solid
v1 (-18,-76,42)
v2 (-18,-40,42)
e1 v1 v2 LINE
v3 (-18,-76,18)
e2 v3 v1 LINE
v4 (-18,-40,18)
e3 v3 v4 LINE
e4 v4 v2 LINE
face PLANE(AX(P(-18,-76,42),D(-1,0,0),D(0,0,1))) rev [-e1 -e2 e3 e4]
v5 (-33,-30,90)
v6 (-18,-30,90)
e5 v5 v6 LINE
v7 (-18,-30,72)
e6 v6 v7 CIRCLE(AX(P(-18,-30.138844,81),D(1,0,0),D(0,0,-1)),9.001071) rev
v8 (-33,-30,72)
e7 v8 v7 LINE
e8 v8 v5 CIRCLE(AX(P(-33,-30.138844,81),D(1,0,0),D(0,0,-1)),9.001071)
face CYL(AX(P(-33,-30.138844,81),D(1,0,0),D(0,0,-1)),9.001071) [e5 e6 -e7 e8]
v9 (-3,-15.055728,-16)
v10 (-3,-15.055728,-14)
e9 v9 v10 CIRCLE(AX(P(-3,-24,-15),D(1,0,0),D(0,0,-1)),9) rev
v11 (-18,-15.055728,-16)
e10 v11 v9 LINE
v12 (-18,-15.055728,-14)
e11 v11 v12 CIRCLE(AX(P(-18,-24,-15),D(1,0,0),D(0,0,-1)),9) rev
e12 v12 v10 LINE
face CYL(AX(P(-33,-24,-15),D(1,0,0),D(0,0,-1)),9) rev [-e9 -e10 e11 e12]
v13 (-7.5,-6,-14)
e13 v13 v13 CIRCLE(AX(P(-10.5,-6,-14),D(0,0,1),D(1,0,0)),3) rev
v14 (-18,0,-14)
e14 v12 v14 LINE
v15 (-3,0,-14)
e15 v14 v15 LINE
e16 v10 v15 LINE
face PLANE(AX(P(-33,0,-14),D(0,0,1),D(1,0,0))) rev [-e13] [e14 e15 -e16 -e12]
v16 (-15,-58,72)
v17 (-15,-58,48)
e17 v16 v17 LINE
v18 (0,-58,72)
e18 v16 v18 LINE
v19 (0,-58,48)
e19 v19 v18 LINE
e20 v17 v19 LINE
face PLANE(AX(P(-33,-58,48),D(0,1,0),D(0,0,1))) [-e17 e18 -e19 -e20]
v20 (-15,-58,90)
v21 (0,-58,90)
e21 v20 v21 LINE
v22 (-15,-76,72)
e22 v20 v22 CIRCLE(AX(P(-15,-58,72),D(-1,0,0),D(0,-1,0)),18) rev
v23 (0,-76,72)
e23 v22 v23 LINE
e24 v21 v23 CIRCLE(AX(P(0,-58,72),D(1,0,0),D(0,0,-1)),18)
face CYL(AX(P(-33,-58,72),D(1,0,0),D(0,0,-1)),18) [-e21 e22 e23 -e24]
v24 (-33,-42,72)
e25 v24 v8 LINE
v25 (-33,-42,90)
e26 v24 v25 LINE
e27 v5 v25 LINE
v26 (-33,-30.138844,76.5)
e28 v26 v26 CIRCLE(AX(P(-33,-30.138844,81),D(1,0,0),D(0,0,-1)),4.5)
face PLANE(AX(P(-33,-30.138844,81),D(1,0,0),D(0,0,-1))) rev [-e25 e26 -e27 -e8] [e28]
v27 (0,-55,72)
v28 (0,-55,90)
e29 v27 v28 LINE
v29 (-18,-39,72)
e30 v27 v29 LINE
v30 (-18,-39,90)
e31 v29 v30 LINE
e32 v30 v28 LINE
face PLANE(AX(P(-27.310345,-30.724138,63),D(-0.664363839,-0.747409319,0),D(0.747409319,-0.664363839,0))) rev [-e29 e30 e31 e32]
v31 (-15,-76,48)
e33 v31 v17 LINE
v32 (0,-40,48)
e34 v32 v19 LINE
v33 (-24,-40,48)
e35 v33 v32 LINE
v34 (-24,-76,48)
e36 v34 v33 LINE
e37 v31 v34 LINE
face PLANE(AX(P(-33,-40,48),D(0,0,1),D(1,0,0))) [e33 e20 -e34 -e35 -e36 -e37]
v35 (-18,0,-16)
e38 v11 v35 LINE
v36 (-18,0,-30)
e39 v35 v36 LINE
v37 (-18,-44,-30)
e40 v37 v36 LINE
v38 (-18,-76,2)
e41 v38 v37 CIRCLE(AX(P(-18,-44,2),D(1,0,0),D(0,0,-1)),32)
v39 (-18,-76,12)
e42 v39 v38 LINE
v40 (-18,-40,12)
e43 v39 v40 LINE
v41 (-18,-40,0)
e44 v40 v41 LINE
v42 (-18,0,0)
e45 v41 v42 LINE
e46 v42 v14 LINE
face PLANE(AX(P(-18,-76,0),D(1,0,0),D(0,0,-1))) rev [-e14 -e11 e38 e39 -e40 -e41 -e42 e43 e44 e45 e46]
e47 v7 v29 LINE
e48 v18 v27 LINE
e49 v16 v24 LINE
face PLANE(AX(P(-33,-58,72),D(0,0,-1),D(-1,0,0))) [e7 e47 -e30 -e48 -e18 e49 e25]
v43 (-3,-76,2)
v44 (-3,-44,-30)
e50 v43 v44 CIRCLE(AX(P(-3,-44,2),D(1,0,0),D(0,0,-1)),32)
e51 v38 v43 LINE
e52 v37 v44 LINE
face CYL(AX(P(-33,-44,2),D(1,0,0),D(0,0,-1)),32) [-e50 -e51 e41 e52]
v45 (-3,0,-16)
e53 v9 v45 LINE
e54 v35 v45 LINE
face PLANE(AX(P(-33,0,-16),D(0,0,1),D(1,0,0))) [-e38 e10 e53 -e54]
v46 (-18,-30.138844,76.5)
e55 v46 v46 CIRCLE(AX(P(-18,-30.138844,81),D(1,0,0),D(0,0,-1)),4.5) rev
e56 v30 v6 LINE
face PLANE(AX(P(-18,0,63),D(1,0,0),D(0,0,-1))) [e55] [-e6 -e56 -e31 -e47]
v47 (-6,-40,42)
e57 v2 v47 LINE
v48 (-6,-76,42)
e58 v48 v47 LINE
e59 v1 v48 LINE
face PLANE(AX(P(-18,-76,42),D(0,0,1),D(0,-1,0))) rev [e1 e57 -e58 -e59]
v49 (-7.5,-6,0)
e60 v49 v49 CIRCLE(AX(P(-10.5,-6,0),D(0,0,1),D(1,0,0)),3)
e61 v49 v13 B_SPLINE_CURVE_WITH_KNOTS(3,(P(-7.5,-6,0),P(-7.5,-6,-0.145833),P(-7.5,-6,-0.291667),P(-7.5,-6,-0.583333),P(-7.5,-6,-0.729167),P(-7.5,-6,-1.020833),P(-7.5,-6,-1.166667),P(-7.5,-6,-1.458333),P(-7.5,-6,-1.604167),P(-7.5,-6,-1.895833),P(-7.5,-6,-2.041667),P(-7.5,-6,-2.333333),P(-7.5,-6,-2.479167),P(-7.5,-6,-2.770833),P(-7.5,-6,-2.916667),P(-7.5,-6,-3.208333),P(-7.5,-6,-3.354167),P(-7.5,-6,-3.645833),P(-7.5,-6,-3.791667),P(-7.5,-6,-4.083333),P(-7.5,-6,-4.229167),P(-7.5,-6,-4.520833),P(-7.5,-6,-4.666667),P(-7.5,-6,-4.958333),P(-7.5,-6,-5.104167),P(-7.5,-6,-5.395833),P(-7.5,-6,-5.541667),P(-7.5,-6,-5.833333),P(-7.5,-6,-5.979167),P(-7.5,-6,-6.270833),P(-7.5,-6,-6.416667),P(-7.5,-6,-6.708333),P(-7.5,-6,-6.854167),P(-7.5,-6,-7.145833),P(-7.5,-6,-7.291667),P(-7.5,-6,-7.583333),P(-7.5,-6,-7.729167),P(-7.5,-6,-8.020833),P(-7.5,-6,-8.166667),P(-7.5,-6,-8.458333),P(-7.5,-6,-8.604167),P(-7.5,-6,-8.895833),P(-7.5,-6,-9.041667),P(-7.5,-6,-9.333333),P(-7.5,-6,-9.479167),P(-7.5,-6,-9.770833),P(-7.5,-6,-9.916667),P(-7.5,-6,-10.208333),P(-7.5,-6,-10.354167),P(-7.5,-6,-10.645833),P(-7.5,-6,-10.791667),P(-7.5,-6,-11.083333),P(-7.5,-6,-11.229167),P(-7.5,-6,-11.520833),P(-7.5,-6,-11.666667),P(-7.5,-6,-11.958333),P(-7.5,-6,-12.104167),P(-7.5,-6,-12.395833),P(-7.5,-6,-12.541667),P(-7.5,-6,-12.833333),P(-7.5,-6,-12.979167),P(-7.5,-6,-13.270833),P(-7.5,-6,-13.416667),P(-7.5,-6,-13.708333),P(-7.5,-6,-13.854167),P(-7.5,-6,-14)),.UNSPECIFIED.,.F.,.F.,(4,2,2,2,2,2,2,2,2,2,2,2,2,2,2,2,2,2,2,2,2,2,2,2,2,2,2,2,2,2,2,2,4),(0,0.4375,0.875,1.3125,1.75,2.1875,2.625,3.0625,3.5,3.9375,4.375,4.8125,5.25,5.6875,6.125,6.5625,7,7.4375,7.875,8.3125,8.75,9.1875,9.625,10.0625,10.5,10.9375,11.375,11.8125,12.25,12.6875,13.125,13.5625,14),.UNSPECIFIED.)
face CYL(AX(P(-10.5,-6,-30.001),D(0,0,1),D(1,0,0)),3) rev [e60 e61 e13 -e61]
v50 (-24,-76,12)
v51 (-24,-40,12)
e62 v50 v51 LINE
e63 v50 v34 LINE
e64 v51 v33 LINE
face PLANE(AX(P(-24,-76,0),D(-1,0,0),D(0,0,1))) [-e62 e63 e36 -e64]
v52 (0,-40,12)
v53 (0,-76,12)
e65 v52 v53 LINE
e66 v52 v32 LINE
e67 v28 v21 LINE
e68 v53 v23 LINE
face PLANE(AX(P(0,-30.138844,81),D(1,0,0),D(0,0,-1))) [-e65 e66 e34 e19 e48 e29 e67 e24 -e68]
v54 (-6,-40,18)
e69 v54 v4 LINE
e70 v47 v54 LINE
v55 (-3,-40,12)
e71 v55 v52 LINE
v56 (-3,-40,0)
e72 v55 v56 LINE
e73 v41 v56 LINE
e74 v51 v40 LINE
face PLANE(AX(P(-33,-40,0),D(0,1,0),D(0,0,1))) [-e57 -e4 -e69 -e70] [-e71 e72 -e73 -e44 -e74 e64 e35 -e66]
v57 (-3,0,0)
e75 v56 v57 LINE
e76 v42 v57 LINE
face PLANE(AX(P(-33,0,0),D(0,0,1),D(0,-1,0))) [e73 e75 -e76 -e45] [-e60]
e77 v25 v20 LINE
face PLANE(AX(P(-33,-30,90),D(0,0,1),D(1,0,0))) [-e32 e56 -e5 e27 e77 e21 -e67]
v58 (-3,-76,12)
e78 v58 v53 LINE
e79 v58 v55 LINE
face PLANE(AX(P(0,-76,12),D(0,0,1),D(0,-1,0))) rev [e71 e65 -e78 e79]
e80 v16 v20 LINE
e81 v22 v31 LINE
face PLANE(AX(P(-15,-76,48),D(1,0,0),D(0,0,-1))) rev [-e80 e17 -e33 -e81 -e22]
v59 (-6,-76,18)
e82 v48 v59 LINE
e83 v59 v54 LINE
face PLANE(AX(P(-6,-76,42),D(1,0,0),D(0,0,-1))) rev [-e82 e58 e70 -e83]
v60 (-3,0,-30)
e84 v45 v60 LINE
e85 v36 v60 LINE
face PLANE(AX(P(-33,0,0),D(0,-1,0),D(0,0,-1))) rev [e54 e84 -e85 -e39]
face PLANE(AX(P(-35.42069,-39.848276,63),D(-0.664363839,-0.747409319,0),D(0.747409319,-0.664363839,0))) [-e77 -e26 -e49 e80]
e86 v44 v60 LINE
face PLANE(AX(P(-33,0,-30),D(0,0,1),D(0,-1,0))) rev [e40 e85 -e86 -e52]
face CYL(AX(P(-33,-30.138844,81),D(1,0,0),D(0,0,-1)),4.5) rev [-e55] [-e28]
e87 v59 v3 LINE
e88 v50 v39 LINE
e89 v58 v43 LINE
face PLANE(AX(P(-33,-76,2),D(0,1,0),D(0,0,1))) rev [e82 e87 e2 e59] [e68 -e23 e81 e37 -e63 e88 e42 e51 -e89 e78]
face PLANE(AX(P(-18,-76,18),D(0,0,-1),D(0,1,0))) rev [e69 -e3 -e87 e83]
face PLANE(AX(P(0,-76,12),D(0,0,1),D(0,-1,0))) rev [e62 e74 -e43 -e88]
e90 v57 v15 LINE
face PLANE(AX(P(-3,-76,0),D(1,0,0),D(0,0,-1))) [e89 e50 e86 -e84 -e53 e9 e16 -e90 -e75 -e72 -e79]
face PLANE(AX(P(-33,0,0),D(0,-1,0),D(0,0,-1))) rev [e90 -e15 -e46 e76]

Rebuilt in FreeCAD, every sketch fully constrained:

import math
import FreeCAD as App
import Part
import Sketcher
from FreeCAD import Vector


def add_polygon(sketch, points):
    """Adds a closed chain of lines whose ends are joined by coincident constraints."""
    first, n = sketch.GeometryCount, len(points)
    for a, b in zip(points, points[1:] + points[:1]):
        sketch.addGeometry(Part.LineSegment(App.Vector(*a, 0), App.Vector(*b, 0)), False)
    for i in range(n):
        sketch.addConstraint(Sketcher.Constraint("Coincident", first + i, 2, first + (i + 1) % n, 1))

doc = App.newDocument("Part")
params = doc.addObject("Spreadsheet::Sheet", "Params")
for row, (alias, value) in enumerate([
    ("sketch1_radius", "18 mm"),
    ("sketch1_radius2", "32 mm"),
    ("sketch1_width", "40 mm"),
    ("sketch1_width2", "18 mm"),
    ("sketch1_width3", "28 mm"),
    ("pad1_length", "33 mm"),
    ("sketch2_radius", "9 mm"),
    ("sketch2_height", "2 mm"),
    ("sketch3_diameter", "9 mm"),
    ("sketch4_width", "9 mm"),
    ("sketch4_height", "48 mm"),
    ("sketch5_width", "18 mm"),
    ("sketch5_height", "24 mm"),
    ("sketch6_width", "9 mm"),
    ("sketch6_height", "30 mm"),
    ("sketch7_width", "6 mm"),
    ("sketch7_height", "42 mm"),
    ("sketch9_width", "12 mm"),
    ("sketch9_height", "24 mm"),
    ("sketch10_diameter", "6 mm"),
    ("sketch11_width", "18 mm"),
    ("sketch11_height", "34 mm"),
    ("pocket10_length", "27 mm"),
    ("sketch12_width", "18 mm"),
    ("pocket11_length", "27 mm"),
], start=1):
    params.set(f"A{row}", alias)
    params.set(f"B{row}", "=" + value)
    params.setAlias(f"B{row}", alias)

body = doc.addObject("PartDesign::Body", "Body")

# Sketch on YZ plane
sketch1 = doc.addObject("Sketcher::SketchObject", "Sketch")
body.addObject(sketch1)
sketch1.AttachmentSupport = (doc.YZ_Plane, [""])
sketch1.MapMode = "FlatFace"
sketch1.addGeometry([
    Part.LineSegment(Vector(0, -30, 0), Vector(0, 0, 0)),  # 0
    Part.LineSegment(Vector(0, 0, 0), Vector(-40, 0, 0)),  # 1
    Part.LineSegment(Vector(-40, 0, 0), Vector(-40, 48, 0)),  # 2
    Part.LineSegment(Vector(-40, 48, 0), Vector(-58, 48, 0)),  # 3
    Part.LineSegment(Vector(-58, 48, 0), Vector(-58, 72, 0)),  # 4
    Part.LineSegment(Vector(-58, 72, 0), Vector(-30, 72, 0)),  # 5
    Part.ArcOfCircle(Part.Circle(Vector(-30, 81, 0), Vector(0, 0, 1), 9), math.radians(-89), math.radians(89)),  # 6
    Part.LineSegment(Vector(-30, 90, 0), Vector(-58, 90, 0)),  # 7
    Part.ArcOfCircle(Part.Circle(Vector(-58, 72, 0), Vector(0, 0, 1), 18), math.radians(90), math.radians(180)),  # 8
    Part.LineSegment(Vector(-76, 72, 0), Vector(-76, 2, 0)),  # 9
    Part.ArcOfCircle(Part.Circle(Vector(-44, 2, 0), Vector(0, 0, 1), 32), math.radians(180), math.radians(270)),  # 10
    Part.LineSegment(Vector(-44, -30, 0), Vector(0, -30, 0)),  # 11
], False)
sketch1.addConstraint([
    Sketcher.Constraint("Coincident", 0, 2, 1, 1),
    Sketcher.Constraint("Coincident", 1, 2, 2, 1),
    Sketcher.Constraint("Coincident", 2, 2, 3, 1),
    Sketcher.Constraint("Coincident", 3, 2, 4, 1),
    Sketcher.Constraint("Coincident", 4, 2, 5, 1),
    Sketcher.Constraint("Coincident", 5, 2, 6, 1),
    Sketcher.Constraint("Coincident", 6, 2, 7, 1),
    Sketcher.Constraint("Tangent", 7, 2, 8, 1),
    Sketcher.Constraint("Tangent", 8, 2, 9, 1),
    Sketcher.Constraint("Tangent", 9, 2, 10, 1),
    Sketcher.Constraint("Tangent", 10, 2, 11, 1),
    Sketcher.Constraint("Coincident", 11, 2, 0, 1),
    Sketcher.Constraint("Vertical", 0),
    Sketcher.Constraint("Horizontal", 1),
    Sketcher.Constraint("Vertical", 2),
    Sketcher.Constraint("Horizontal", 3),
    Sketcher.Constraint("Vertical", 4),
    Sketcher.Constraint("Horizontal", 5),
    Sketcher.Constraint("Horizontal", 7),
    Sketcher.Constraint("Vertical", 9),
    Sketcher.Constraint("Horizontal", 11),
    Sketcher.Constraint("Coincident", 0, 2, -1, 1),
    Sketcher.Constraint("Coincident", 4, 2, 8, 3),
    Sketcher.Constraint("Vertical", 5, 2, 6, 2),
    Sketcher.Constraint("Radius", 8, 18.0),
    Sketcher.Constraint("Radius", 10, 32.0),
    Sketcher.Constraint("DistanceX", 1, 2, 1, 1, 40.0),
    Sketcher.Constraint("DistanceX", 3, 2, 3, 1, 18.0),
    Sketcher.Constraint("DistanceX", 5, 1, 5, 2, 28.0),
    Sketcher.Constraint("DistanceY", 0, 1, 0, 2, 30.0),
    Sketcher.Constraint("DistanceY", 2, 1, 2, 2, 48.0),
    Sketcher.Constraint("DistanceY", 4, 1, 4, 2, 24.0),
    Sketcher.Constraint("Radius", 6, 9.001071),
])
sketch1.setExpression("Constraints[24]", "Params.sketch1_radius")
sketch1.setExpression("Constraints[25]", "Params.sketch1_radius2")
sketch1.setExpression("Constraints[26]", "Params.sketch1_width")
sketch1.setExpression("Constraints[27]", "Params.sketch1_width2")
sketch1.setExpression("Constraints[28]", "Params.sketch1_width3")
pad1 = doc.addObject("PartDesign::Pad", "Pad")
body.addObject(pad1)
pad1.Profile = sketch1
pad1.setExpression("Length", "Params.pad1_length")
pad1.Reversed = True

# Sketch on YZ plane
sketch2 = doc.addObject("Sketcher::SketchObject", "Sketch001")
body.addObject(sketch2)
sketch2.AttachmentSupport = (doc.YZ_Plane, [""])
sketch2.MapMode = "FlatFace"
sketch2.addGeometry([
    Part.LineSegment(Vector(0, -16, 0), Vector(0, -14, 0)),
    Part.LineSegment(Vector(0, -14, 0), Vector(-15.1, -14, 0)),
    Part.ArcOfCircle(Part.Circle(Vector(-24, -15, 0), Vector(0, 0, 1), 9), math.radians(6), math.radians(354)),
    Part.LineSegment(Vector(-15.1, -16, 0), Vector(0, -16, 0)),
], False)
sketch2.addConstraint([
    Sketcher.Constraint("Coincident", 0, 2, 1, 1),
    Sketcher.Constraint("Coincident", 1, 2, 2, 1),
    Sketcher.Constraint("Coincident", 2, 2, 3, 1),
    Sketcher.Constraint("Coincident", 3, 2, 0, 1),
    Sketcher.Constraint("Vertical", 0),
    Sketcher.Constraint("Horizontal", 1),
    Sketcher.Constraint("Horizontal", 3),
    Sketcher.Constraint("PointOnObject", 0, 2, -2),
    Sketcher.Constraint("Vertical", 1, 2, 2, 2),
    Sketcher.Constraint("Radius", 2, 9.0),
    Sketcher.Constraint("DistanceY", 0, 1, 0, 2, 2.0),
    Sketcher.Constraint("DistanceX", 2, 3, -1, 1, 24.0),
    Sketcher.Constraint("DistanceY", 2, 3, -1, 1, 15.0),
])
sketch2.setExpression("Constraints[9]", "Params.sketch2_radius")
sketch2.setExpression("Constraints[10]", "Params.sketch2_height")
pocket1 = doc.addObject("PartDesign::Pocket", "Pocket")
body.addObject(pocket1)
pocket1.Profile = sketch2
pocket1.Type = "ThroughAll"
pocket1.Midplane = True

# Sketch on YZ plane
sketch3 = doc.addObject("Sketcher::SketchObject", "Sketch002")
body.addObject(sketch3)
sketch3.AttachmentSupport = (doc.YZ_Plane, [""])
sketch3.MapMode = "FlatFace"
sketch3.addGeometry(Part.Circle(Vector(-30.1, 81, 0), Vector(0, 0, 1), 4.5), False)
sketch3.addConstraint([
    Sketcher.Constraint("Diameter", 0, 9.0),
    Sketcher.Constraint("DistanceY", -1, 1, 0, 3, 81.0),
    Sketcher.Constraint("DistanceX", 0, 3, -1, 1, 30.138844),
])
sketch3.setExpression("Constraints[0]", "Params.sketch3_diameter")
pocket2 = doc.addObject("PartDesign::Pocket", "Pocket001")
body.addObject(pocket2)
pocket2.Profile = sketch3
pocket2.Type = "ThroughAll"
pocket2.Midplane = True

# Sketch on XZ plane
sketch4 = doc.addObject("Sketcher::SketchObject", "Sketch003")
body.addObject(sketch4)
sketch4.AttachmentSupport = (doc.XZ_Plane, [""])
sketch4.MapMode = "FlatFace"
add_polygon(sketch4, [(-33, 0), (-33, 48), (-24, 48), (-24, 0)])  # lines 0-3
sketch4.addConstraint([
    Sketcher.Constraint("Vertical", 0),
    Sketcher.Constraint("Horizontal", 1),
    Sketcher.Constraint("Vertical", 2),
    Sketcher.Constraint("Horizontal", 3),
    Sketcher.Constraint("PointOnObject", 2, 2, -1),
    Sketcher.Constraint("DistanceX", 1, 1, 1, 2, 9.0),
    Sketcher.Constraint("DistanceY", 0, 1, 0, 2, 48.0),
    Sketcher.Constraint("DistanceX", 0, 2, -1, 1, 33.0),
])
sketch4.setExpression("Constraints[9]", "Params.sketch4_width")
sketch4.setExpression("Constraints[10]", "Params.sketch4_height")
pocket3 = doc.addObject("PartDesign::Pocket", "Pocket002")
body.addObject(pocket3)
pocket3.Profile = sketch4
pocket3.Type = "ThroughAll"
pocket3.Midplane = True

# Sketch on XZ plane
sketch5 = doc.addObject("Sketcher::SketchObject", "Sketch004")
body.addObject(sketch5)
sketch5.AttachmentSupport = (doc.XZ_Plane, [""])
sketch5.MapMode = "FlatFace"
sketch5.AttachmentOffset = App.Placement(Vector(0, 0, 58), App.Rotation())
add_polygon(sketch5, [(-33, 48), (-33, 72), (-15, 72), (-15, 48)])  # lines 0-3
sketch5.addConstraint([
    Sketcher.Constraint("Vertical", 0),
    Sketcher.Constraint("Horizontal", 1),
    Sketcher.Constraint("Vertical", 2),
    Sketcher.Constraint("Horizontal", 3),
    Sketcher.Constraint("DistanceX", 1, 1, 1, 2, 18.0),
    Sketcher.Constraint("DistanceY", 0, 1, 0, 2, 24.0),
    Sketcher.Constraint("DistanceX", 0, 2, -1, 1, 33.0),
    Sketcher.Constraint("DistanceY", -1, 1, 0, 2, 72.0),
])
sketch5.setExpression("Constraints[8]", "Params.sketch5_width")
sketch5.setExpression("Constraints[9]", "Params.sketch5_height")
pocket4 = doc.addObject("PartDesign::Pocket", "Pocket003")
body.addObject(pocket4)
pocket4.Profile = sketch5
pocket4.Type = "ThroughAll"
pocket4.Midplane = True

# Sketch on XZ plane
sketch6 = doc.addObject("Sketcher::SketchObject", "Sketch005")
body.addObject(sketch6)
sketch6.AttachmentSupport = (doc.XZ_Plane, [""])
sketch6.MapMode = "FlatFace"
sketch6.AttachmentOffset = App.Placement(Vector(0, 0, 40), App.Rotation())
add_polygon(sketch6, [(-33, -30), (-33, 0), (-24, 0), (-24, -30)])  # lines 0-3
sketch6.addConstraint([
    Sketcher.Constraint("Vertical", 0),
    Sketcher.Constraint("Horizontal", 1),
    Sketcher.Constraint("Vertical", 2),
    Sketcher.Constraint("Horizontal", 3),
    Sketcher.Constraint("PointOnObject", 0, 2, -1),
    Sketcher.Constraint("DistanceX", 1, 1, 1, 2, 9.0),
    Sketcher.Constraint("DistanceY", 0, 1, 0, 2, 30.0),
    Sketcher.Constraint("DistanceX", 0, 2, -1, 1, 33.0),
])
sketch6.setExpression("Constraints[9]", "Params.sketch6_width")
sketch6.setExpression("Constraints[10]", "Params.sketch6_height")
pocket5 = doc.addObject("PartDesign::Pocket", "Pocket004")
body.addObject(pocket5)
pocket5.Profile = sketch6
pocket5.Type = "ThroughAll"
pocket5.Midplane = True

# Sketch on XZ plane
sketch7 = doc.addObject("Sketcher::SketchObject", "Sketch006")
body.addObject(sketch7)
sketch7.AttachmentSupport = (doc.XZ_Plane, [""])
sketch7.MapMode = "FlatFace"
sketch7.AttachmentOffset = App.Placement(Vector(0, 0, 40), App.Rotation())
add_polygon(sketch7, [(-24, -30), (-24, 12), (-18, 12), (-18, -30)])  # lines 0-3
sketch7.addConstraint([
    Sketcher.Constraint("Vertical", 0),
    Sketcher.Constraint("Horizontal", 1),
    Sketcher.Constraint("Vertical", 2),
    Sketcher.Constraint("Horizontal", 3),
    Sketcher.Constraint("DistanceX", 1, 1, 1, 2, 6.0),
    Sketcher.Constraint("DistanceY", 0, 1, 0, 2, 42.0),
    Sketcher.Constraint("DistanceX", 0, 2, -1, 1, 24.0),
    Sketcher.Constraint("DistanceY", -1, 1, 0, 2, 12.0),
])
sketch7.setExpression("Constraints[8]", "Params.sketch7_width")
sketch7.setExpression("Constraints[9]", "Params.sketch7_height")
pocket6 = doc.addObject("PartDesign::Pocket", "Pocket005")
body.addObject(pocket6)
pocket6.Profile = sketch7
pocket6.Type = "ThroughAll"
pocket6.Midplane = True

# Sketch on XZ plane
sketch8 = doc.addObject("Sketcher::SketchObject", "Sketch007")
body.addObject(sketch8)
sketch8.AttachmentSupport = (doc.XZ_Plane, [""])
sketch8.MapMode = "FlatFace"
sketch8.AttachmentOffset = App.Placement(Vector(0, 0, 40), App.Rotation())
add_polygon(sketch8, [(11, 12), (11, -35), (-3, -35), (-3, 12)])  # lines 0-3
sketch8.addConstraint([
    Sketcher.Constraint("Vertical", 0),
    Sketcher.Constraint("Horizontal", 1),
    Sketcher.Constraint("Vertical", 2),
    Sketcher.Constraint("Horizontal", 3),
    Sketcher.Constraint("DistanceX", 1, 2, -1, 1, 3.0),
    Sketcher.Constraint("DistanceY", -1, 1, 2, 2, 12.0),
    Sketcher.Constraint("DistanceX", 1, 2, 1, 1, 13.713454),
    Sketcher.Constraint("DistanceY", 0, 2, 0, 1, 47.251216),
])
pocket7 = doc.addObject("PartDesign::Pocket", "Pocket006")
body.addObject(pocket7)
pocket7.Profile = sketch8
pocket7.Type = "ThroughAll"
pocket7.Midplane = True

# Sketch on XZ plane
sketch9 = doc.addObject("Sketcher::SketchObject", "Sketch008")
body.addObject(sketch9)
sketch9.AttachmentSupport = (doc.XZ_Plane, [""])
sketch9.MapMode = "FlatFace"
sketch9.AttachmentOffset = App.Placement(Vector(0, 0, 40), App.Rotation())
add_polygon(sketch9, [(-18, 18), (-18, 42), (-6, 42), (-6, 18)])  # lines 0-3
sketch9.addConstraint([
    Sketcher.Constraint("Vertical", 0),
    Sketcher.Constraint("Horizontal", 1),
    Sketcher.Constraint("Vertical", 2),
    Sketcher.Constraint("Horizontal", 3),
    Sketcher.Constraint("DistanceX", 1, 1, 1, 2, 12.0),
    Sketcher.Constraint("DistanceY", 0, 1, 0, 2, 24.0),
    Sketcher.Constraint("DistanceX", 0, 2, -1, 1, 18.0),
    Sketcher.Constraint("DistanceY", -1, 1, 0, 2, 42.0),
])
sketch9.setExpression("Constraints[8]", "Params.sketch9_width")
sketch9.setExpression("Constraints[9]", "Params.sketch9_height")
pocket8 = doc.addObject("PartDesign::Pocket", "Pocket007")
body.addObject(pocket8)
pocket8.Profile = sketch9
pocket8.Type = "ThroughAll"
pocket8.Midplane = True

# Sketch on XY plane
sketch10 = doc.addObject("Sketcher::SketchObject", "Sketch009")
body.addObject(sketch10)
sketch10.AttachmentSupport = (doc.XY_Plane, [""])
sketch10.MapMode = "FlatFace"
sketch10.addGeometry(Part.Circle(Vector(-10.5, -6, 0), Vector(0, 0, 1), 3), False)
sketch10.addConstraint([
    Sketcher.Constraint("Diameter", 0, 6.0),
    Sketcher.Constraint("DistanceY", 0, 3, -1, 1, 6.0),
    Sketcher.Constraint("DistanceX", 0, 3, -1, 1, 10.5),
])
sketch10.setExpression("Constraints[0]", "Params.sketch10_diameter")
pocket9 = doc.addObject("PartDesign::Pocket", "Pocket008")
body.addObject(pocket9)
pocket9.Profile = sketch10
pocket9.Type = "UpToFirst"

# Sketch on XY plane
sketch11 = doc.addObject("Sketcher::SketchObject", "Sketch010")
body.addObject(sketch11)
sketch11.AttachmentSupport = (doc.XY_Plane, [""])
sketch11.MapMode = "FlatFace"
sketch11.AttachmentOffset = App.Placement(Vector(0, 0, 90), App.Rotation())
add_polygon(sketch11, [(-33, -76), (-15, -76), (-15, -58), (-33, -42)])  # lines 0-3
sketch11.addConstraint([
    Sketcher.Constraint("Horizontal", 0),
    Sketcher.Constraint("Vertical", 1),
    Sketcher.Constraint("Vertical", 3),
    Sketcher.Constraint("Equal", 0, 1),
    Sketcher.Constraint("DistanceX", 0, 1, 0, 2, 18.0),
    Sketcher.Constraint("DistanceY", 3, 2, 3, 1, 34.0),
    Sketcher.Constraint("DistanceX", 0, 2, -1, 1, 15.0),
    Sketcher.Constraint("DistanceY", 0, 2, -1, 1, 76.0),
])
sketch11.setExpression("Constraints[8]", "Params.sketch11_width")
sketch11.setExpression("Constraints[9]", "Params.sketch11_height")
pocket10 = doc.addObject("PartDesign::Pocket", "Pocket009")
body.addObject(pocket10)
pocket10.Profile = sketch11
pocket10.setExpression("Length", "Params.pocket10_length")

# Sketch on XY plane
sketch12 = doc.addObject("Sketcher::SketchObject", "Sketch011")
body.addObject(sketch12)
sketch12.AttachmentSupport = (doc.XY_Plane, [""])
sketch12.MapMode = "FlatFace"
sketch12.AttachmentOffset = App.Placement(Vector(0, 0, 90), App.Rotation())
add_polygon(sketch12, [(-18, -21), (-18, -39), (0, -55), (0, -21)])  # lines 0-3
sketch12.addConstraint([
    Sketcher.Constraint("Vertical", 0),
    Sketcher.Constraint("Vertical", 2),
    Sketcher.Constraint("Horizontal", 3),
    Sketcher.Constraint("PointOnObject", 1, 2, -2),
    Sketcher.Constraint("DistanceX", 3, 2, 3, 1, 18.0),
    Sketcher.Constraint("DistanceY", 0, 2, -1, 1, 39.0),
    Sketcher.Constraint("DistanceY", 1, 2, -1, 1, 55.0),
    Sketcher.Constraint("DistanceY", 0, 2, 0, 1, 17.862227),
])
sketch12.setExpression("Constraints[8]", "Params.sketch12_width")
pocket11 = doc.addObject("PartDesign::Pocket", "Pocket010")
body.addObject(pocket11)
pocket11.Profile = sketch12
pocket11.setExpression("Length", "Params.pocket11_length")

doc.recompute()
